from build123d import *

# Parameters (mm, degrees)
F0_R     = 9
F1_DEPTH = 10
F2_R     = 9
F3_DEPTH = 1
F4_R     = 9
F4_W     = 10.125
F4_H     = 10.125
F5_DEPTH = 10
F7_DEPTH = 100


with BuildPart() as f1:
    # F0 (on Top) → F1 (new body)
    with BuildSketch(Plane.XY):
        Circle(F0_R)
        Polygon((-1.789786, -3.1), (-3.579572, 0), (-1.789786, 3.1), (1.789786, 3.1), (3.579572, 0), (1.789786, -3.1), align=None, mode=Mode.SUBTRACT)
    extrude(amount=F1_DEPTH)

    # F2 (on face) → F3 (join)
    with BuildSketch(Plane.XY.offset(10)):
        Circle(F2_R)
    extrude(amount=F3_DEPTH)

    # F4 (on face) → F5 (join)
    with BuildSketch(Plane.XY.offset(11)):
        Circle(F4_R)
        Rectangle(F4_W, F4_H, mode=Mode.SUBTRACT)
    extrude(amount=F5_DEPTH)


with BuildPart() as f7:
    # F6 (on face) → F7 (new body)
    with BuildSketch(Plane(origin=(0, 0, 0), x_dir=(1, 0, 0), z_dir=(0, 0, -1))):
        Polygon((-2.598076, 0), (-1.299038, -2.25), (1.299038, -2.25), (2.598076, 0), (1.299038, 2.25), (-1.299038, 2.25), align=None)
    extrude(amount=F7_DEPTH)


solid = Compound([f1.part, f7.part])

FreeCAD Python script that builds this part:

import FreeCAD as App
import Part
import Sketcher
from FreeCAD import Vector
Q = App.Units.Quantity


def add_polygon(sketch, points):
    """Adds a closed chain of lines whose ends are joined by coincident constraints."""
    first, n = sketch.GeometryCount, len(points)
    for a, b in zip(points, points[1:] + points[:1]):
        sketch.addGeometry(Part.LineSegment(App.Vector(*a, 0), App.Vector(*b, 0)), False)
    for i in range(n):
        sketch.addConstraint(Sketcher.Constraint("Coincident", first + i, 2, first + (i + 1) % n, 1))

doc = App.newDocument("Part")
body = doc.addObject("PartDesign::Body", "Body")

sketch1 = body.newObject("Sketcher::SketchObject", "Sketch")
sketch1.AttachmentSupport = (doc.getObject("XY_Plane"), [""])
sketch1.MapMode = "FlatFace"
sketch1.addGeometry(Part.Circle(Vector(0, 0, 0), Vector(0, 0, 1), 9), False)
add_polygon(sketch1, [(1.789786, -3.1), (-1.789786, -3.1), (-3.579572, 0), (-1.789786, 3.1), (1.789786, 3.1), (3.579572, 0)])
sketch1.addConstraint([
    Sketcher.Constraint("Horizontal", 1),
    Sketcher.Constraint("Horizontal", 4),
    Sketcher.Constraint("Coincident", 0, 3, -1, 1),
    Sketcher.Constraint("Symmetric", 1, 2, 4, 2, -1, 1),
    Sketcher.Constraint("Symmetric", 2, 2, 5, 2, -1, 1),
    Sketcher.Constraint("PointOnObject", 2, 2, -1),
    Sketcher.Constraint("Parallel", 3, 6),
    Sketcher.Constraint("Vertical", 1, 2, 3, 2),
    Sketcher.Constraint("Diameter", 0, Q("18 mm")),
    Sketcher.Constraint("Angle", 2, Q("120.000002 deg")),
    Sketcher.Constraint("DistanceY", 1, 2, -1, 1, Q("3.1 mm")),
    Sketcher.Constraint("DistanceX", 1, 2, 1, 1, Q("3.579572 mm")),
])
pad1 = body.newObject("PartDesign::Pad", "Pad")
pad1.Profile = sketch1
pad1.Length = 10

sketch2 = body.newObject("Sketcher::SketchObject", "Sketch001")
sketch2.AttachmentSupport = (doc.getObject("XY_Plane"), [""])
sketch2.MapMode = "FlatFace"
sketch2.AttachmentOffset = App.Placement(Vector(0, 0, 10), App.Rotation())
sketch2.addGeometry(Part.Circle(Vector(0, 0, 0), Vector(0, 0, 1), 9), False)
sketch2.addConstraint([
    Sketcher.Constraint("Coincident", 0, 3, -1, 1),
    Sketcher.Constraint("Diameter", 0, Q("18 mm")),
])
pad2 = body.newObject("PartDesign::Pad", "Pad001")
pad2.Profile = sketch2
pad2.Length = 1

sketch3 = body.newObject("Sketcher::SketchObject", "Sketch002")
sketch3.AttachmentSupport = (doc.getObject("XY_Plane"), [""])
sketch3.MapMode = "FlatFace"
sketch3.AttachmentOffset = App.Placement(Vector(0, 0, 11), App.Rotation())
sketch3.addGeometry(Part.Circle(Vector(0, 0, 0), Vector(0, 0, 1), 9), False)
add_polygon(sketch3, [(5.0625, -5.0625), (-5.0625, -5.0625), (-5.0625, 5.0625), (5.0625, 5.0625)])
sketch3.addConstraint([
    Sketcher.Constraint("Horizontal", 1),
    Sketcher.Constraint("Vertical", 2),
    Sketcher.Constraint("Horizontal", 3),
    Sketcher.Constraint("Vertical", 4),
    Sketcher.Constraint("Coincident", 0, 3, -1, 1),
    Sketcher.Constraint("Symmetric", 1, 2, 3, 2, -1, 1),
    Sketcher.Constraint("Equal", 3, 2),
    Sketcher.Constraint("Diameter", 0, Q("18 mm")),
    Sketcher.Constraint("DistanceX", 1, 2, 1, 1, Q("10.125 mm")),
])
pad3 = body.newObject("PartDesign::Pad", "Pad002")
pad3.Profile = sketch3
pad3.Length = 10
body2 = doc.addObject("PartDesign::Body", "Body001")

sketch4 = body2.newObject("Sketcher::SketchObject", "Sketch003")
sketch4.AttachmentSupport = (doc.getObject("XY_Plane001"), [""])
sketch4.MapMode = "FlatFace"
add_polygon(sketch4, [(-2.598076, 0), (-1.299038, 2.25), (1.299038, 2.25), (2.598076, 0), (1.299038, -2.25), (-1.299038, -2.25)])
sketch4.addConstraint([
    Sketcher.Constraint("Horizontal", 1),
    Sketcher.Constraint("Horizontal", 4),
    Sketcher.Constraint("Symmetric", 0, 2, 3, 2, -1, 1),
    Sketcher.Constraint("Symmetric", 2, 2, 5, 2, -1, 1),
    Sketcher.Constraint("PointOnObject", 2, 2, -1),
    Sketcher.Constraint("Parallel", 2, 5),
    Sketcher.Constraint("Vertical", 1, 2, 3, 2),
    Sketcher.Constraint("Angle", 0, Q("60.000002 deg")),
    Sketcher.Constraint("DistanceY", 3, 2, 1, 2, Q("4.5 mm")),
    Sketcher.Constraint("DistanceX", 1, 1, 1, 2, Q("2.598076 mm")),
])
pad4 = body2.newObject("PartDesign::Pad", "Pad003")
pad4.Profile = sketch4
pad4.Length = 100
pad4.Reversed = True

doc.recompute()
